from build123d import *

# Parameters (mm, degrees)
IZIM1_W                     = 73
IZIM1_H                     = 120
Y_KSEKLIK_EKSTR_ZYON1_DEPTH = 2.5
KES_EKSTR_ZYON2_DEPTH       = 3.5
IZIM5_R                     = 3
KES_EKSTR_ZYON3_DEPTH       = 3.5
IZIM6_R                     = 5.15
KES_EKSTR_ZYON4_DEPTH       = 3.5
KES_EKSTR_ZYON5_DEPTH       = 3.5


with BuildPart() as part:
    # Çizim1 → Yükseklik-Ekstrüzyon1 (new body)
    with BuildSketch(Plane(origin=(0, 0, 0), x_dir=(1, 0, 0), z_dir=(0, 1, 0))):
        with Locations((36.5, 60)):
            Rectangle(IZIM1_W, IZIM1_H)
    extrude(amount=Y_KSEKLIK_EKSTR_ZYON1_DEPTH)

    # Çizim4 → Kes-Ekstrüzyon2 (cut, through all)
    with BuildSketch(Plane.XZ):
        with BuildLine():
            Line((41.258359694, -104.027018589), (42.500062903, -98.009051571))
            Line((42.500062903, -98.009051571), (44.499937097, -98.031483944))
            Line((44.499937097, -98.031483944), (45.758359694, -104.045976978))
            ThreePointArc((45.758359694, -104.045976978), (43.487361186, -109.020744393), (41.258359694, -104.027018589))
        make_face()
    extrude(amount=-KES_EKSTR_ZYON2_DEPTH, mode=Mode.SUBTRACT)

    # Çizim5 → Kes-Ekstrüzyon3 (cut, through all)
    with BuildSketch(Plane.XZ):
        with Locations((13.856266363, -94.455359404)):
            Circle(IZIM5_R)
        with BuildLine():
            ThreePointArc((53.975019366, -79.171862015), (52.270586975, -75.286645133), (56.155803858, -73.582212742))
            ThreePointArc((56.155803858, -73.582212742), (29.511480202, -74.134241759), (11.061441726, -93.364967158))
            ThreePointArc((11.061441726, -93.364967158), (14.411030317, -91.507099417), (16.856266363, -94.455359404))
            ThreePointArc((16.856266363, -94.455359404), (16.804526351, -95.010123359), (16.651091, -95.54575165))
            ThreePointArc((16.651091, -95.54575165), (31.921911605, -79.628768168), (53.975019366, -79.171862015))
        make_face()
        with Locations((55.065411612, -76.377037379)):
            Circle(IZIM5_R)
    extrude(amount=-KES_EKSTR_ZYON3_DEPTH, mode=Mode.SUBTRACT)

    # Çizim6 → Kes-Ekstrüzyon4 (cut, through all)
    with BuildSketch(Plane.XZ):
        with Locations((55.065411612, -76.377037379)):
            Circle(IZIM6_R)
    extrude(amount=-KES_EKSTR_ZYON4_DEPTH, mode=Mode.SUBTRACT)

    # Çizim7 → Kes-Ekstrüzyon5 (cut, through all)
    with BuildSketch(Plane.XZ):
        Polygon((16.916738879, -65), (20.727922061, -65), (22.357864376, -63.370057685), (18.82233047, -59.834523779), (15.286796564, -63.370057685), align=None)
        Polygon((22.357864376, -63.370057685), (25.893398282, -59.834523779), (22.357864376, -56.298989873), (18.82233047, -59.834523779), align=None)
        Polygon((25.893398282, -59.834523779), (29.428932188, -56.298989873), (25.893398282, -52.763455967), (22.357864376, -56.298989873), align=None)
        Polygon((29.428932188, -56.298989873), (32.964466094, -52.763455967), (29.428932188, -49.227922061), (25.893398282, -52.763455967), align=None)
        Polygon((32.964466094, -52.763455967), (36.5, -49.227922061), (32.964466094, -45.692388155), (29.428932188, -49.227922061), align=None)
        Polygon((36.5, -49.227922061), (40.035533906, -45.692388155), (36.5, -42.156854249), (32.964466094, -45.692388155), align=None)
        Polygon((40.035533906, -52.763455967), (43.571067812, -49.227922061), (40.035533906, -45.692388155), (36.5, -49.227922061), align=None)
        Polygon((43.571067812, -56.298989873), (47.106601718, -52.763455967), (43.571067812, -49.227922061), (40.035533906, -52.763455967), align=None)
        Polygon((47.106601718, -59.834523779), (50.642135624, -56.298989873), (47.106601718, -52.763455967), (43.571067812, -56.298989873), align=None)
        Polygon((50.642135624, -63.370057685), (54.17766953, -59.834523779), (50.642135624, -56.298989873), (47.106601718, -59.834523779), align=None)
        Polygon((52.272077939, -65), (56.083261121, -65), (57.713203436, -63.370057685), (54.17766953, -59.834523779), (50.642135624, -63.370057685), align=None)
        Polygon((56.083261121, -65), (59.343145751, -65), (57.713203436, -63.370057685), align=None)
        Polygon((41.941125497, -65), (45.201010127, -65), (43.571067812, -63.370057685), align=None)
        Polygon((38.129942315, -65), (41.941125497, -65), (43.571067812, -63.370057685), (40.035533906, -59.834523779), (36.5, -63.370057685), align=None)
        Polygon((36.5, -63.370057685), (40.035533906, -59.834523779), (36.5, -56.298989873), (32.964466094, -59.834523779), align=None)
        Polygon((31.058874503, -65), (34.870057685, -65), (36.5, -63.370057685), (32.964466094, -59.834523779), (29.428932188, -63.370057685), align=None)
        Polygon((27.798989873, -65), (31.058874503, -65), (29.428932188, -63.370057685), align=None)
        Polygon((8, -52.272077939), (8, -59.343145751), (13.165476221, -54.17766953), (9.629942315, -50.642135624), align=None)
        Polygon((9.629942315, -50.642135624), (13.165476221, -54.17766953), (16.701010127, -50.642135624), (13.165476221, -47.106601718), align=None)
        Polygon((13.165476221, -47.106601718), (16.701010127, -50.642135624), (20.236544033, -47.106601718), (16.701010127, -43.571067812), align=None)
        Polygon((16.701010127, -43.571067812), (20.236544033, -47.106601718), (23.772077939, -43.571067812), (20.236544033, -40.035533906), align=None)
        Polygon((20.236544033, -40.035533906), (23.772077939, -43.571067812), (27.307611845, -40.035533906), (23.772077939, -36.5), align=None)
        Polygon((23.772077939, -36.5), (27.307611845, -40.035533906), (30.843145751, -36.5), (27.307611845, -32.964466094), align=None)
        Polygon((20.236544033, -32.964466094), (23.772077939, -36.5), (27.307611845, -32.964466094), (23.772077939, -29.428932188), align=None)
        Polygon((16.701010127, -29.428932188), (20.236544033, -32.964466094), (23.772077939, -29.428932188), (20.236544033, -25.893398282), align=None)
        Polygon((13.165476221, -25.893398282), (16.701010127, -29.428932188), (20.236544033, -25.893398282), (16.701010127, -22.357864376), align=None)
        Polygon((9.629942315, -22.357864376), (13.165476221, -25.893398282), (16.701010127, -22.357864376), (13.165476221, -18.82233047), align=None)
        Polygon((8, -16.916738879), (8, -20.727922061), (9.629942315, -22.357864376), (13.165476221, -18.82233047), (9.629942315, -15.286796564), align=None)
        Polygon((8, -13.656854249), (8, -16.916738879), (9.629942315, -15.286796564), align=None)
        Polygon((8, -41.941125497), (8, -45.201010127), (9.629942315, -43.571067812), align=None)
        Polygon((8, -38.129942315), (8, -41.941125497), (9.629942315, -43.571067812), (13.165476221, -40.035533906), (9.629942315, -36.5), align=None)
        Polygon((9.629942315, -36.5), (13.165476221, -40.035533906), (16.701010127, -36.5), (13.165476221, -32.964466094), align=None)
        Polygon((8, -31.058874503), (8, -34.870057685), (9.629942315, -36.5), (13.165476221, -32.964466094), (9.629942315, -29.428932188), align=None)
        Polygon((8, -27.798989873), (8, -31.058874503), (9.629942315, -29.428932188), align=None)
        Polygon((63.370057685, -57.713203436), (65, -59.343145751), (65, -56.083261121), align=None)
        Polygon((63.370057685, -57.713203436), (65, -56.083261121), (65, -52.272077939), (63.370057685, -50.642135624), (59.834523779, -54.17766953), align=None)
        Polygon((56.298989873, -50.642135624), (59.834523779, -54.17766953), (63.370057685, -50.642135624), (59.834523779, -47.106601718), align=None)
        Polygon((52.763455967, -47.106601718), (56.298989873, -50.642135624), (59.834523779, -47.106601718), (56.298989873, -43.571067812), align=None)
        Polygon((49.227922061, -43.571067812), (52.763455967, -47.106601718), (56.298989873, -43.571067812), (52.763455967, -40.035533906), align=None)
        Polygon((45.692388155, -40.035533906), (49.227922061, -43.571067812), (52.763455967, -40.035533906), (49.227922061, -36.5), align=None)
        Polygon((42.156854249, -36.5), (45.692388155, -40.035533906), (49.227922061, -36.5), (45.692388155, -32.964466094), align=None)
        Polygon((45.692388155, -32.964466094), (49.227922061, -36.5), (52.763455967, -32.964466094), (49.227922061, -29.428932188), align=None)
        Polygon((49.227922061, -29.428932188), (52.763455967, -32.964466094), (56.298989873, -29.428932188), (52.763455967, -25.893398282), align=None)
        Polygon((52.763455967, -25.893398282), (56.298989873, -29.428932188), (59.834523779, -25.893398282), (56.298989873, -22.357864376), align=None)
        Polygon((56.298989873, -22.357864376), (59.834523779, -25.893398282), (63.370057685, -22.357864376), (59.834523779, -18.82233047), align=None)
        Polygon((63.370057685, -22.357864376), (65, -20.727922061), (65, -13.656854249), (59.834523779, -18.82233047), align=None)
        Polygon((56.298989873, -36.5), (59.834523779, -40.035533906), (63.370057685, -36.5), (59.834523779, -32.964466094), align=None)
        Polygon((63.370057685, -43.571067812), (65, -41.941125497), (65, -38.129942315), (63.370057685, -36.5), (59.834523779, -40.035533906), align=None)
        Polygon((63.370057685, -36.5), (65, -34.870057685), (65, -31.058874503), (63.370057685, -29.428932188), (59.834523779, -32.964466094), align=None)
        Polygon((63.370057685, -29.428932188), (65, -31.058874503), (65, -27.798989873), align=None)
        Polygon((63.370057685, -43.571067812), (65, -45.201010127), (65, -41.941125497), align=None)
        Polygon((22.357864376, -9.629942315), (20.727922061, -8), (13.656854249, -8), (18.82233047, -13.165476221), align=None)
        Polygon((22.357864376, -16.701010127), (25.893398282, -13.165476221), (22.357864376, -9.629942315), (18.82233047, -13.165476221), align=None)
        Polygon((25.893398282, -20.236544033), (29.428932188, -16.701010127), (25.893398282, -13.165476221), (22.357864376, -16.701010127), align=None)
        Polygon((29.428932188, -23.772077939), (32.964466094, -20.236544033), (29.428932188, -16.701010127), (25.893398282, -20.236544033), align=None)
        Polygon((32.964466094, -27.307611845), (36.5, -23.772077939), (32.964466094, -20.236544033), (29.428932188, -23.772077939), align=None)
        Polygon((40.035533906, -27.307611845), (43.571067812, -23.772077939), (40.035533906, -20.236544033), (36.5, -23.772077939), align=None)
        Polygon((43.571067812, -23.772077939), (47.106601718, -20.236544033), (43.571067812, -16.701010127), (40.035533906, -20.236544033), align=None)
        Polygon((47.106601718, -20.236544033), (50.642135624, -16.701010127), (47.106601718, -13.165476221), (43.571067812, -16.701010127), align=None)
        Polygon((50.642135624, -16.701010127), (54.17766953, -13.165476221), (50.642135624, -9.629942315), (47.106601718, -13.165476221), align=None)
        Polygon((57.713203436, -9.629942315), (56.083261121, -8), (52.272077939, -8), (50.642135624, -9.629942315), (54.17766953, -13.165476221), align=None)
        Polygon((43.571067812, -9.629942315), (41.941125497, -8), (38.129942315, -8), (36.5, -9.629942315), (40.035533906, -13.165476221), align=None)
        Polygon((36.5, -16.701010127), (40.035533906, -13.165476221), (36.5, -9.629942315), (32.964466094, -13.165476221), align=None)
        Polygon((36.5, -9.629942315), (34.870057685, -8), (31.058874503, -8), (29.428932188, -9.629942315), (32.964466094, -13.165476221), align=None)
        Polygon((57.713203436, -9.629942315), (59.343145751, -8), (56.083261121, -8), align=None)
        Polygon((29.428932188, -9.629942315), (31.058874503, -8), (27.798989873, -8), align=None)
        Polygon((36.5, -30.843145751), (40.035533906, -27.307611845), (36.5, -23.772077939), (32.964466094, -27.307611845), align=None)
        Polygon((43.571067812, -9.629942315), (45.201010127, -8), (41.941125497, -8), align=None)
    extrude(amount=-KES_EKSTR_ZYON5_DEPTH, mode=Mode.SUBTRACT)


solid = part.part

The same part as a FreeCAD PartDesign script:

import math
import FreeCAD as App
import Part
import Sketcher


def add_polygon(sketch, points):
    """Adds a closed chain of lines whose ends are joined by coincident constraints."""
    first, n = sketch.GeometryCount, len(points)
    for a, b in zip(points, points[1:] + points[:1]):
        sketch.addGeometry(Part.LineSegment(App.Vector(*a, 0), App.Vector(*b, 0)), False)
    for i in range(n):
        sketch.addConstraint(Sketcher.Constraint("Coincident", first + i, 2, first + (i + 1) % n, 1))

doc = App.newDocument("Part")
params = doc.addObject("Spreadsheet::Sheet", "Params")
for row, (alias, value) in enumerate([
    ("sketch1_width", "73 mm"),
    ("sketch1_height", "120 mm"),
    ("pad1_length", "2.5 mm"),
    ("sketch2_radius", "3 mm"),
    ("sketch2_length", "2 mm"),
    ("sketch3_radius", "3 mm"),
    ("sketch4_diameter", "10.3 mm"),
    ("sketch5_length", "30 mm"),
], start=1):
    params.set(f"A{row}", alias)
    params.set(f"B{row}", "=" + value)
    params.setAlias(f"B{row}", alias)

body = doc.addObject("PartDesign::Body", "Body")

# Sketch on XZ plane
sketch1 = doc.addObject("Sketcher::SketchObject", "Sketch")
body.addObject(sketch1)
sketch1.AttachmentSupport = (doc.XZ_Plane, [""])
sketch1.MapMode = "FlatFace"
add_polygon(sketch1, [(0, -120), (0, 0), (73, 0), (73, -120)])  # lines 0-3
sketch1.addConstraint([
    Sketcher.Constraint("Vertical", 0),
    Sketcher.Constraint("Horizontal", 1),
    Sketcher.Constraint("Vertical", 2),
    Sketcher.Constraint("Horizontal", 3),
    Sketcher.Constraint("Coincident", 0, 2, -1, 1),
    Sketcher.Constraint("DistanceX", 1, 1, 1, 2, 73.0),
    Sketcher.Constraint("DistanceY", 0, 1, 0, 2, 120.0),
])
sketch1.setExpression("Constraints[9]", "Params.sketch1_width")
sketch1.setExpression("Constraints[10]", "Params.sketch1_height")
pad1 = doc.addObject("PartDesign::Pad", "Pad")
body.addObject(pad1)
pad1.Profile = sketch1
pad1.setExpression("Length", "Params.pad1_length")
pad1.Reversed = True

# Sketch on XZ plane
sketch2 = doc.addObject("Sketcher::SketchObject", "Sketch001")
body.addObject(sketch2)
sketch2.AttachmentSupport = (doc.XZ_Plane, [""])
sketch2.MapMode = "FlatFace"
sketch2.addGeometry([
    Part.LineSegment(App.Vector(42.500063, -98.009052, 0), App.Vector(41.25836, -104.027019, 0)),
    Part.ArcOfCircle(Part.Circle(App.Vector(43.5, -106.020771, 0), App.Vector(0, 0, 1), 3), math.radians(138.34957), math.radians(401.167661)),
    Part.LineSegment(App.Vector(45.75836, -104.045977, 0), App.Vector(44.499937, -98.031484, 0)),
    Part.LineSegment(App.Vector(44.499937, -98.031484, 0), App.Vector(42.500063, -98.009052, 0)),
], False)
sketch2.addConstraint([
    Sketcher.Constraint("Coincident", 0, 2, 1, 1),
    Sketcher.Constraint("Coincident", 1, 2, 2, 1),
    Sketcher.Constraint("Coincident", 2, 2, 3, 1),
    Sketcher.Constraint("Coincident", 3, 2, 0, 1),
    Sketcher.Constraint("Equal", 0, 2),
    Sketcher.Constraint("Radius", 1, 3.0),
    Sketcher.Constraint("Distance", 3, 2.0),
    Sketcher.Constraint("DistanceX", -1, 1, 1, 3, 43.5),
    Sketcher.Constraint("DistanceX", 0, 2, 1, 2, 4.5),
    Sketcher.Constraint("DistanceY", 1, 3, -1, 1, 106.020771),
    Sketcher.Constraint("DistanceX", -1, 1, 0, 2, 41.25836),
    Sketcher.Constraint("DistanceY", 3, 2, -1, 1, 98.009052),
    Sketcher.Constraint("Distance", 0, 6.144734),
])
sketch2.setExpression("Constraints[5]", "Params.sketch2_radius")
sketch2.setExpression("Constraints[6]", "Params.sketch2_length")
pocket1 = doc.addObject("PartDesign::Pocket", "Pocket")
body.addObject(pocket1)
pocket1.Profile = sketch2
pocket1.Type = "ThroughAll"

# Sketch on XZ plane
sketch3 = doc.addObject("Sketcher::SketchObject", "Sketch002")
body.addObject(sketch3)
sketch3.AttachmentSupport = (doc.XZ_Plane, [""])
sketch3.MapMode = "FlatFace"
sketch3.addGeometry([
    Part.ArcOfCircle(Part.Circle(App.Vector(13.856266, -94.455359, 0), App.Vector(0, 0, 1), 3), math.radians(158.68691), math.radians(338.68691)),
    Part.ArcOfCircle(Part.Circle(App.Vector(43.5, -106.020771, 0), App.Vector(0, 0, 1), 28.819957), math.radians(68.68691), math.radians(158.68691)),
    Part.ArcOfCircle(Part.Circle(App.Vector(55.065412, -76.377037, 0), App.Vector(0, 0, 1), 3), math.radians(-111.31309), math.radians(68.68691)),
    Part.ArcOfCircle(Part.Circle(App.Vector(43.5, -106.020771, 0), App.Vector(0, 0, 1), 34.819957), math.radians(68.68691), math.radians(158.68691)),
], False)
sketch3.addConstraint([
    Sketcher.Constraint("Tangent", 0, 2, 1, 2),
    Sketcher.Constraint("Tangent", 1, 1, 2, 1),
    Sketcher.Constraint("Tangent", 2, 2, 3, 1),
    Sketcher.Constraint("Tangent", 3, 2, 0, 1),
    Sketcher.Constraint("Coincident", 3, 3, 1, 3),
    Sketcher.Constraint("Radius", 0, 3.0),
    Sketcher.Constraint("DistanceX", -1, 1, 1, 3, 43.5),
    Sketcher.Constraint("Radius", 1, 28.819957),
    Sketcher.Constraint("DistanceY", 0, 3, -1, 1, 94.455359),
    Sketcher.Constraint("DistanceY", 1, 3, -1, 1, 106.020771),
    Sketcher.Constraint("DistanceX", -1, 1, 2, 3, 55.065412),
])
sketch3.setExpression("Constraints[5]", "Params.sketch3_radius")
pocket2 = doc.addObject("PartDesign::Pocket", "Pocket001")
body.addObject(pocket2)
pocket2.Profile = sketch3
pocket2.Type = "ThroughAll"

# Sketch on XZ plane
sketch4 = doc.addObject("Sketcher::SketchObject", "Sketch003")
body.addObject(sketch4)
sketch4.AttachmentSupport = (doc.XZ_Plane, [""])
sketch4.MapMode = "FlatFace"
sketch4.addGeometry(Part.Circle(App.Vector(55.065412, -76.377037, 0), App.Vector(0, 0, 1), 5.15), False)
sketch4.addConstraint([
    Sketcher.Constraint("Diameter", 0, 10.3),
    Sketcher.Constraint("DistanceX", -1, 1, 0, 3, 55.065412),
    Sketcher.Constraint("DistanceY", 0, 3, -1, 1, 76.377037),
])
sketch4.setExpression("Constraints[0]", "Params.sketch4_diameter")
pocket3 = doc.addObject("PartDesign::Pocket", "Pocket002")
body.addObject(pocket3)
pocket3.Profile = sketch4
pocket3.Type = "ThroughAll"

# Sketch on XZ plane
sketch5 = doc.addObject("Sketcher::SketchObject", "Sketch004")
body.addObject(sketch5)
sketch5.AttachmentSupport = (doc.XZ_Plane, [""])
sketch5.MapMode = "FlatFace"
add_polygon(sketch5, [(16.916739, -65), (20.727922, -65), (36.5, -49.227922), (52.272078, -65), (59.343146, -65), (36.5, -42.156854), (15.286797, -63.370058)])  # lines 0-6
add_polygon(sketch5, [(45.20101, -65), (36.5, -56.29899), (27.79899, -65), (34.870058, -65), (36.5, -63.370058), (38.129942, -65)])  # lines 7-12
add_polygon(sketch5, [(8, -52.272078), (8, -59.343146), (30.843146, -36.5), (8, -13.656854), (8, -20.727922), (23.772078, -36.5)])  # lines 13-18
add_polygon(sketch5, [(8, -45.20101), (16.70101, -36.5), (8, -27.79899), (8, -34.870058), (9.629942, -36.5), (8, -38.129942)])  # lines 19-24
add_polygon(sketch5, [(65, -59.343146), (65, -52.272078), (49.227922, -36.5), (65, -20.727922), (65, -13.656854), (42.156854, -36.5)])  # lines 25-30
add_polygon(sketch5, [(56.29899, -36.5), (65, -45.20101), (65, -38.129942), (63.370058, -36.5), (65, -34.870058), (65, -27.79899)])  # lines 31-36
add_polygon(sketch5, [(20.727922, -8), (13.656854, -8), (36.5, -30.843146), (59.343146, -8), (52.272078, -8), (36.5, -23.772078)])  # lines 37-42
add_polygon(sketch5, [(38.129942, -8), (36.5, -9.629942), (34.870058, -8), (27.79899, -8), (36.5, -16.70101), (45.20101, -8)])  # lines 43-48
sketch5.addConstraint([
    Sketcher.Constraint("Horizontal", 0),
    Sketcher.Constraint("Horizontal", 3),
    Sketcher.Constraint("Horizontal", 9),
    Sketcher.Constraint("Horizontal", 12),
    Sketcher.Constraint("Vertical", 13),
    Sketcher.Constraint("Vertical", 16),
    Sketcher.Constraint("Vertical", 21),
    Sketcher.Constraint("Vertical", 24),
    Sketcher.Constraint("Vertical", 25),
    Sketcher.Constraint("Vertical", 28),
    Sketcher.Constraint("Vertical", 32),
    Sketcher.Constraint("Vertical", 35),
    Sketcher.Constraint("Horizontal", 37),
    Sketcher.Constraint("Horizontal", 40),
    Sketcher.Constraint("Horizontal", 45),
    Sketcher.Constraint("Horizontal", 48),
    Sketcher.Constraint("Perpendicular", 1, 2),
    Sketcher.Constraint("Parallel", 2, 4),
    Sketcher.Constraint("Perpendicular", 4, 5),
    Sketcher.Constraint("Perpendicular", 5, 6),
    Sketcher.Constraint("Parallel", 6, 7),
    Sketcher.Constraint("Perpendicular", 7, 8),
    Sketcher.Constraint("Parallel", 8, 10),
    Sketcher.Constraint("Perpendicular", 10, 11),
    Sketcher.Constraint("Perpendicular", 11, 14),
    Sketcher.Constraint("Perpendicular", 14, 15),
    Sketcher.Constraint("Parallel", 15, 17),
    Sketcher.Constraint("Perpendicular", 17, 18),
    Sketcher.Constraint("Parallel", 18, 19),
    Sketcher.Constraint("Perpendicular", 19, 20),
    Sketcher.Constraint("Parallel", 20, 22),
    Sketcher.Constraint("Perpendicular", 22, 23),
    Sketcher.Constraint("Perpendicular", 23, 26),
    Sketcher.Constraint("Perpendicular", 26, 27),
    Sketcher.Constraint("Parallel", 27, 29),
    Sketcher.Constraint("Perpendicular", 29, 30),
    Sketcher.Constraint("Parallel", 30, 31),
    Sketcher.Constraint("Parallel", 31, 33),
    Sketcher.Constraint("Perpendicular", 33, 34),
    Sketcher.Constraint("Parallel", 34, 36),
    Sketcher.Constraint("Perpendicular", 36, 38),
    Sketcher.Constraint("Perpendicular", 38, 39),
    Sketcher.Constraint("Parallel", 39, 41),
    Sketcher.Constraint("Perpendicular", 41, 42),
    Sketcher.Constraint("Perpendicular", 42, 43),
    Sketcher.Constraint("Perpendicular", 43, 44),
    Sketcher.Constraint("Parallel", 44, 46),
    Sketcher.Constraint("Perpendicular", 46, 47),
    Sketcher.Constraint("Horizontal", 0, 2, 2, 2),
    Sketcher.Constraint("Horizontal", 6, 2, 8, 2),
    Sketcher.Constraint("Horizontal", 5, 2, 10, 2),
    Sketcher.Constraint("Horizontal", 9, 2, 11, 2),
    Sketcher.Constraint("Horizontal", 14, 2, 17, 2),
    Sketcher.Constraint("Horizontal", 17, 2, 19, 2),
    Sketcher.Constraint("Horizontal", 19, 2, 22, 2),
    Sketcher.Constraint("Horizontal", 18, 2, 25, 2),
    Sketcher.Constraint("Horizontal", 22, 2, 26, 2),
    Sketcher.Constraint("Horizontal", 16, 2, 27, 2),
    Sketcher.Constraint("Horizontal", 15, 2, 28, 2),
    Sketcher.Constraint("Horizontal", 26, 2, 29, 2),
    Sketcher.Constraint("Horizontal", 13, 2, 30, 2),
    Sketcher.Constraint("Horizontal", 24, 2, 31, 2),
    Sketcher.Constraint("Horizontal", 23, 2, 32, 2),
    Sketcher.Constraint("Horizontal", 29, 2, 33, 2),
    Sketcher.Constraint("Horizontal", 21, 2, 34, 2),
    Sketcher.Constraint("Horizontal", 20, 2, 35, 2),
    Sketcher.Constraint("Horizontal", 37, 2, 39, 2),
    Sketcher.Constraint("Horizontal", 42, 2, 44, 2),
    Sketcher.Constraint("Horizontal", 45, 2, 47, 2),
    Sketcher.Constraint("Vertical", 1, 2, 4, 2),
    Sketcher.Constraint("Vertical", 4, 2, 7, 2),
    Sketcher.Constraint("Vertical", 7, 2, 10, 2),
    Sketcher.Constraint("Vertical", 13, 2, 15, 2),
    Sketcher.Constraint("Vertical", 18, 2, 20, 2),
    Sketcher.Constraint("Vertical", 21, 2, 23, 2),
    Sketcher.Constraint("Vertical", 30, 2, 31, 2),
    Sketcher.Constraint("Vertical", 10, 2, 38, 2),
    Sketcher.Constraint("Vertical", 3, 2, 39, 2),
    Sketcher.Constraint("Vertical", 2, 2, 40, 2),
    Sketcher.Constraint("Vertical", 38, 2, 41, 2),
    Sketcher.Constraint("Vertical", 41, 2, 43, 2),
    Sketcher.Constraint("Vertical", 9, 2, 44, 2),
    Sketcher.Constraint("Vertical", 8, 2, 45, 2),
    Sketcher.Constraint("Vertical", 43, 2, 46, 2),
    Sketcher.Constraint("Equal", 3, 9),
    Sketcher.Constraint("Equal", 48, 13),
    Sketcher.Constraint("Equal", 16, 21),
    Sketcher.Constraint("Equal", 4, 14),
    Sketcher.Constraint("Equal", 8, 19),
    Sketcher.Constraint("Distance", 5, 30.0),
    Sketcher.Constraint("DistanceY", 0, 2, -1, 1, 65.0),
    Sketcher.Constraint("DistanceX", -1, 1, 13, 2, 8.0),
    Sketcher.Constraint("DistanceX", -1, 1, 25, 2, 65.0),
    Sketcher.Constraint("DistanceY", 37, 2, -1, 1, 8.0),
    Sketcher.Constraint("DistanceX", -1, 1, 1, 2, 36.5),
    Sketcher.Constraint("DistanceY", 14, 2, -1, 1, 36.5),
    Sketcher.Constraint("DistanceX", 0, 1, 0, 2, 3.811183),
    Sketcher.Constraint("DistanceX", 3, 1, 3, 2, 7.071068),
])
sketch5.setExpression("Constraints[138]", "Params.sketch5_length")
pocket4 = doc.addObject("PartDesign::Pocket", "Pocket003")
body.addObject(pocket4)
pocket4.Profile = sketch5
pocket4.Type = "ThroughAll"

doc.recompute()
